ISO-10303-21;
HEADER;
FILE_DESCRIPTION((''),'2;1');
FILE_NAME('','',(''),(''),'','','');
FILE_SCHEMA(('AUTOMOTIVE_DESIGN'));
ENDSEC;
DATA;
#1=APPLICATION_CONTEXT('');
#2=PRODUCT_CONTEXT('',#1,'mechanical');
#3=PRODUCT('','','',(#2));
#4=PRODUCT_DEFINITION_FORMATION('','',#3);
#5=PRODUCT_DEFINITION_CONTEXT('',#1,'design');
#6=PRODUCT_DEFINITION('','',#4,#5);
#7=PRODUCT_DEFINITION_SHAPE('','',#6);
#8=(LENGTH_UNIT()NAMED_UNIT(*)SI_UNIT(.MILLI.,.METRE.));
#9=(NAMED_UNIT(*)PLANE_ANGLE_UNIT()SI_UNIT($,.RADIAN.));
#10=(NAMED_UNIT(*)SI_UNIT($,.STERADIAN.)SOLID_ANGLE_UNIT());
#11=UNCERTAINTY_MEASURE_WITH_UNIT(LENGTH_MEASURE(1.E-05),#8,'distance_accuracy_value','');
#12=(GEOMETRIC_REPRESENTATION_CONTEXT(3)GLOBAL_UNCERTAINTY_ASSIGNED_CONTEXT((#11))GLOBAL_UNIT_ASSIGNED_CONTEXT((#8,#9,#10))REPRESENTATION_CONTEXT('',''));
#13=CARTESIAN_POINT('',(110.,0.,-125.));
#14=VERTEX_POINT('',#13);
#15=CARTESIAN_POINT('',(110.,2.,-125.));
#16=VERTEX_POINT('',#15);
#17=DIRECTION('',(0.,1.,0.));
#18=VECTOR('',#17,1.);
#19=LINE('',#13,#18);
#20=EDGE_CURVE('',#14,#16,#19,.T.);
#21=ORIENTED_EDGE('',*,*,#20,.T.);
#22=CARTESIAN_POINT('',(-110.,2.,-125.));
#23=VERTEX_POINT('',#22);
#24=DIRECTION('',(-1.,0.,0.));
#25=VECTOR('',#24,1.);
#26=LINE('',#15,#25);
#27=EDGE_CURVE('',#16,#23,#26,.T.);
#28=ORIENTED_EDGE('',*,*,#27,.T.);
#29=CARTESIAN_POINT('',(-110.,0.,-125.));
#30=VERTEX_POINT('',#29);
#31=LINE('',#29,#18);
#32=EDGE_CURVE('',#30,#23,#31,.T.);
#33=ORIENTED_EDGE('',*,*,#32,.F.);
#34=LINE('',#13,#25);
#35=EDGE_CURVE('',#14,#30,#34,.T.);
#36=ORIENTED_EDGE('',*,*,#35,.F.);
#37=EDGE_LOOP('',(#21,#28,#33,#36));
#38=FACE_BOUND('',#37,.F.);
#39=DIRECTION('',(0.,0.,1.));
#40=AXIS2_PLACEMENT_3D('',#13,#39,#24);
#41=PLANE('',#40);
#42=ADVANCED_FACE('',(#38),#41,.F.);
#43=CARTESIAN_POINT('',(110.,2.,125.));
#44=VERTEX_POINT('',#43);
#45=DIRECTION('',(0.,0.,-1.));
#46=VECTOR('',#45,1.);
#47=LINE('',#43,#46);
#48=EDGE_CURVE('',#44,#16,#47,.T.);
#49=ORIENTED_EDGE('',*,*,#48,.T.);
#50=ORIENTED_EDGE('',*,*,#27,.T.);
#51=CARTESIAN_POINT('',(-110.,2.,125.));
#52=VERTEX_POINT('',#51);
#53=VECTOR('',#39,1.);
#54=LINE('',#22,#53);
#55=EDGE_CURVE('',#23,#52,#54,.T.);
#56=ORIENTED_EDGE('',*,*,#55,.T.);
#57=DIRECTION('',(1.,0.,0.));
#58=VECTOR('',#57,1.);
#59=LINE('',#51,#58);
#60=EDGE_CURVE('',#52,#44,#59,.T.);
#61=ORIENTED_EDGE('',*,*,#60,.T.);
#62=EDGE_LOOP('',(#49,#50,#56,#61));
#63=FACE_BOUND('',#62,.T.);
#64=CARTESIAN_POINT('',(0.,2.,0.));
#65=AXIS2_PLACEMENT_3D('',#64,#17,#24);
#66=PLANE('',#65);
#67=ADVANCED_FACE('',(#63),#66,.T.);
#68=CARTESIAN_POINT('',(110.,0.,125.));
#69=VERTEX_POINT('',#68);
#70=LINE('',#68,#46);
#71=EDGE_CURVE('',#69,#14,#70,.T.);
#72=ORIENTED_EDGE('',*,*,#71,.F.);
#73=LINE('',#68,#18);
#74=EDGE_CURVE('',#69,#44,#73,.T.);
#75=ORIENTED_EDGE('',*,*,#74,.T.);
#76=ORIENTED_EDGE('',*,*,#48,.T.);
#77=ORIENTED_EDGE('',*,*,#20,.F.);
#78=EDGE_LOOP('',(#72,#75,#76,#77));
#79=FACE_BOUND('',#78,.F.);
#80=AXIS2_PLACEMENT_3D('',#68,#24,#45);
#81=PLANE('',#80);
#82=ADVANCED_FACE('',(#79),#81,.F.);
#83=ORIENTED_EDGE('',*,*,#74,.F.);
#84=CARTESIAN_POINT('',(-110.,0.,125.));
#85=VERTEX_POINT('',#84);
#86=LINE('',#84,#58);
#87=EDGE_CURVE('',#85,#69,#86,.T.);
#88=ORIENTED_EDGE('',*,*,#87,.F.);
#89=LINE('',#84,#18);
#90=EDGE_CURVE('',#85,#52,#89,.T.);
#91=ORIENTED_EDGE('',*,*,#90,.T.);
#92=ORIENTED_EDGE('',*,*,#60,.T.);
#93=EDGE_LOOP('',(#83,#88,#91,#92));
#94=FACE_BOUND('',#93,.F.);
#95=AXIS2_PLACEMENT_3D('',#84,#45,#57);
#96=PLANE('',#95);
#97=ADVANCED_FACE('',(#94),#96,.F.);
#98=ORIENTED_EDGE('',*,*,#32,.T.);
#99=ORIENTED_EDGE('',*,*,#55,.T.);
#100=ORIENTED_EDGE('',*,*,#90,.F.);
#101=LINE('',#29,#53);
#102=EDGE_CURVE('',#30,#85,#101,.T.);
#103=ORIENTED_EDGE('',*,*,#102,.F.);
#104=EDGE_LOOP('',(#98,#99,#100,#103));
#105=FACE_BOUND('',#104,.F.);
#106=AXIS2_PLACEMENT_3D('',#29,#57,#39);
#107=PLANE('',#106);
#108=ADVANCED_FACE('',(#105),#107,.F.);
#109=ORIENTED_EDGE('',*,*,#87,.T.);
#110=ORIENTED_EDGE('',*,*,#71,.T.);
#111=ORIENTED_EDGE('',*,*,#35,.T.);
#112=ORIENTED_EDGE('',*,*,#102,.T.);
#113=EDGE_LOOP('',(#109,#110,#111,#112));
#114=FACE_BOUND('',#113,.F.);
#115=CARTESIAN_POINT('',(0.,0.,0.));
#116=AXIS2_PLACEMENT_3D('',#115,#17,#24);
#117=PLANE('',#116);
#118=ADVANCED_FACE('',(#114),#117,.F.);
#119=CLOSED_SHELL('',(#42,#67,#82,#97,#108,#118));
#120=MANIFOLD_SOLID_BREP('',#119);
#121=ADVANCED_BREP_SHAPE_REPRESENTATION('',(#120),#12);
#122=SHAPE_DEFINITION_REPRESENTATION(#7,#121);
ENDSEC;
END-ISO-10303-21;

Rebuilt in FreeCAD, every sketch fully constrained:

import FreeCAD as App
import Part
import Sketcher
from FreeCAD import Vector


def add_polygon(sketch, points):
    """Adds a closed chain of lines whose ends are joined by coincident constraints."""
    first, n = sketch.GeometryCount, len(points)
    for a, b in zip(points, points[1:] + points[:1]):
        sketch.addGeometry(Part.LineSegment(App.Vector(*a, 0), App.Vector(*b, 0)), False)
    for i in range(n):
        sketch.addConstraint(Sketcher.Constraint("Coincident", first + i, 2, first + (i + 1) % n, 1))

doc = App.newDocument("Part")
params = doc.addObject("Spreadsheet::Sheet", "Params")
for row, (alias, value) in enumerate([
    ("sketch1_width", "220 mm"),
    ("sketch1_height", "250 mm"),
    ("pad1_length", "2 mm"),
], start=1):
    params.set(f"A{row}", alias)
    params.set(f"B{row}", "=" + value)
    params.setAlias(f"B{row}", alias)

body = doc.addObject("PartDesign::Body", "Body")

# Sketch on XZ plane
sketch1 = doc.addObject("Sketcher::SketchObject", "Sketch")
body.addObject(sketch1)
sketch1.AttachmentSupport = (doc.XZ_Plane, [""])
sketch1.MapMode = "FlatFace"
add_polygon(sketch1, [(-110, -125), (-110, 125), (110, 125), (110, -125)])  # lines 0-3
sketch1.addConstraint(Sketcher.Constraint("Vertical", 0))
sketch1.addConstraint(Sketcher.Constraint("Horizontal", 1))
sketch1.addConstraint(Sketcher.Constraint("Vertical", 2))
sketch1.addConstraint(Sketcher.Constraint("Horizontal", 3))
sketch1.addConstraint(Sketcher.Constraint("Symmetric", 0, 2, 2, 2, -1, 1))
sketch1.addConstraint(Sketcher.Constraint("DistanceX", 1, 1, 1, 2, 220.0))
sketch1.addConstraint(Sketcher.Constraint("DistanceY", 0, 1, 0, 2, 250.0))
sketch1.setExpression("Constraints[9]", "Params.sketch1_width")
sketch1.setExpression("Constraints[10]", "Params.sketch1_height")
pad1 = doc.addObject("PartDesign::Pad", "Pad")
body.addObject(pad1)
pad1.Profile = sketch1
pad1.setExpression("Length", "Params.pad1_length")
pad1.Reversed = True

doc.recompute()
